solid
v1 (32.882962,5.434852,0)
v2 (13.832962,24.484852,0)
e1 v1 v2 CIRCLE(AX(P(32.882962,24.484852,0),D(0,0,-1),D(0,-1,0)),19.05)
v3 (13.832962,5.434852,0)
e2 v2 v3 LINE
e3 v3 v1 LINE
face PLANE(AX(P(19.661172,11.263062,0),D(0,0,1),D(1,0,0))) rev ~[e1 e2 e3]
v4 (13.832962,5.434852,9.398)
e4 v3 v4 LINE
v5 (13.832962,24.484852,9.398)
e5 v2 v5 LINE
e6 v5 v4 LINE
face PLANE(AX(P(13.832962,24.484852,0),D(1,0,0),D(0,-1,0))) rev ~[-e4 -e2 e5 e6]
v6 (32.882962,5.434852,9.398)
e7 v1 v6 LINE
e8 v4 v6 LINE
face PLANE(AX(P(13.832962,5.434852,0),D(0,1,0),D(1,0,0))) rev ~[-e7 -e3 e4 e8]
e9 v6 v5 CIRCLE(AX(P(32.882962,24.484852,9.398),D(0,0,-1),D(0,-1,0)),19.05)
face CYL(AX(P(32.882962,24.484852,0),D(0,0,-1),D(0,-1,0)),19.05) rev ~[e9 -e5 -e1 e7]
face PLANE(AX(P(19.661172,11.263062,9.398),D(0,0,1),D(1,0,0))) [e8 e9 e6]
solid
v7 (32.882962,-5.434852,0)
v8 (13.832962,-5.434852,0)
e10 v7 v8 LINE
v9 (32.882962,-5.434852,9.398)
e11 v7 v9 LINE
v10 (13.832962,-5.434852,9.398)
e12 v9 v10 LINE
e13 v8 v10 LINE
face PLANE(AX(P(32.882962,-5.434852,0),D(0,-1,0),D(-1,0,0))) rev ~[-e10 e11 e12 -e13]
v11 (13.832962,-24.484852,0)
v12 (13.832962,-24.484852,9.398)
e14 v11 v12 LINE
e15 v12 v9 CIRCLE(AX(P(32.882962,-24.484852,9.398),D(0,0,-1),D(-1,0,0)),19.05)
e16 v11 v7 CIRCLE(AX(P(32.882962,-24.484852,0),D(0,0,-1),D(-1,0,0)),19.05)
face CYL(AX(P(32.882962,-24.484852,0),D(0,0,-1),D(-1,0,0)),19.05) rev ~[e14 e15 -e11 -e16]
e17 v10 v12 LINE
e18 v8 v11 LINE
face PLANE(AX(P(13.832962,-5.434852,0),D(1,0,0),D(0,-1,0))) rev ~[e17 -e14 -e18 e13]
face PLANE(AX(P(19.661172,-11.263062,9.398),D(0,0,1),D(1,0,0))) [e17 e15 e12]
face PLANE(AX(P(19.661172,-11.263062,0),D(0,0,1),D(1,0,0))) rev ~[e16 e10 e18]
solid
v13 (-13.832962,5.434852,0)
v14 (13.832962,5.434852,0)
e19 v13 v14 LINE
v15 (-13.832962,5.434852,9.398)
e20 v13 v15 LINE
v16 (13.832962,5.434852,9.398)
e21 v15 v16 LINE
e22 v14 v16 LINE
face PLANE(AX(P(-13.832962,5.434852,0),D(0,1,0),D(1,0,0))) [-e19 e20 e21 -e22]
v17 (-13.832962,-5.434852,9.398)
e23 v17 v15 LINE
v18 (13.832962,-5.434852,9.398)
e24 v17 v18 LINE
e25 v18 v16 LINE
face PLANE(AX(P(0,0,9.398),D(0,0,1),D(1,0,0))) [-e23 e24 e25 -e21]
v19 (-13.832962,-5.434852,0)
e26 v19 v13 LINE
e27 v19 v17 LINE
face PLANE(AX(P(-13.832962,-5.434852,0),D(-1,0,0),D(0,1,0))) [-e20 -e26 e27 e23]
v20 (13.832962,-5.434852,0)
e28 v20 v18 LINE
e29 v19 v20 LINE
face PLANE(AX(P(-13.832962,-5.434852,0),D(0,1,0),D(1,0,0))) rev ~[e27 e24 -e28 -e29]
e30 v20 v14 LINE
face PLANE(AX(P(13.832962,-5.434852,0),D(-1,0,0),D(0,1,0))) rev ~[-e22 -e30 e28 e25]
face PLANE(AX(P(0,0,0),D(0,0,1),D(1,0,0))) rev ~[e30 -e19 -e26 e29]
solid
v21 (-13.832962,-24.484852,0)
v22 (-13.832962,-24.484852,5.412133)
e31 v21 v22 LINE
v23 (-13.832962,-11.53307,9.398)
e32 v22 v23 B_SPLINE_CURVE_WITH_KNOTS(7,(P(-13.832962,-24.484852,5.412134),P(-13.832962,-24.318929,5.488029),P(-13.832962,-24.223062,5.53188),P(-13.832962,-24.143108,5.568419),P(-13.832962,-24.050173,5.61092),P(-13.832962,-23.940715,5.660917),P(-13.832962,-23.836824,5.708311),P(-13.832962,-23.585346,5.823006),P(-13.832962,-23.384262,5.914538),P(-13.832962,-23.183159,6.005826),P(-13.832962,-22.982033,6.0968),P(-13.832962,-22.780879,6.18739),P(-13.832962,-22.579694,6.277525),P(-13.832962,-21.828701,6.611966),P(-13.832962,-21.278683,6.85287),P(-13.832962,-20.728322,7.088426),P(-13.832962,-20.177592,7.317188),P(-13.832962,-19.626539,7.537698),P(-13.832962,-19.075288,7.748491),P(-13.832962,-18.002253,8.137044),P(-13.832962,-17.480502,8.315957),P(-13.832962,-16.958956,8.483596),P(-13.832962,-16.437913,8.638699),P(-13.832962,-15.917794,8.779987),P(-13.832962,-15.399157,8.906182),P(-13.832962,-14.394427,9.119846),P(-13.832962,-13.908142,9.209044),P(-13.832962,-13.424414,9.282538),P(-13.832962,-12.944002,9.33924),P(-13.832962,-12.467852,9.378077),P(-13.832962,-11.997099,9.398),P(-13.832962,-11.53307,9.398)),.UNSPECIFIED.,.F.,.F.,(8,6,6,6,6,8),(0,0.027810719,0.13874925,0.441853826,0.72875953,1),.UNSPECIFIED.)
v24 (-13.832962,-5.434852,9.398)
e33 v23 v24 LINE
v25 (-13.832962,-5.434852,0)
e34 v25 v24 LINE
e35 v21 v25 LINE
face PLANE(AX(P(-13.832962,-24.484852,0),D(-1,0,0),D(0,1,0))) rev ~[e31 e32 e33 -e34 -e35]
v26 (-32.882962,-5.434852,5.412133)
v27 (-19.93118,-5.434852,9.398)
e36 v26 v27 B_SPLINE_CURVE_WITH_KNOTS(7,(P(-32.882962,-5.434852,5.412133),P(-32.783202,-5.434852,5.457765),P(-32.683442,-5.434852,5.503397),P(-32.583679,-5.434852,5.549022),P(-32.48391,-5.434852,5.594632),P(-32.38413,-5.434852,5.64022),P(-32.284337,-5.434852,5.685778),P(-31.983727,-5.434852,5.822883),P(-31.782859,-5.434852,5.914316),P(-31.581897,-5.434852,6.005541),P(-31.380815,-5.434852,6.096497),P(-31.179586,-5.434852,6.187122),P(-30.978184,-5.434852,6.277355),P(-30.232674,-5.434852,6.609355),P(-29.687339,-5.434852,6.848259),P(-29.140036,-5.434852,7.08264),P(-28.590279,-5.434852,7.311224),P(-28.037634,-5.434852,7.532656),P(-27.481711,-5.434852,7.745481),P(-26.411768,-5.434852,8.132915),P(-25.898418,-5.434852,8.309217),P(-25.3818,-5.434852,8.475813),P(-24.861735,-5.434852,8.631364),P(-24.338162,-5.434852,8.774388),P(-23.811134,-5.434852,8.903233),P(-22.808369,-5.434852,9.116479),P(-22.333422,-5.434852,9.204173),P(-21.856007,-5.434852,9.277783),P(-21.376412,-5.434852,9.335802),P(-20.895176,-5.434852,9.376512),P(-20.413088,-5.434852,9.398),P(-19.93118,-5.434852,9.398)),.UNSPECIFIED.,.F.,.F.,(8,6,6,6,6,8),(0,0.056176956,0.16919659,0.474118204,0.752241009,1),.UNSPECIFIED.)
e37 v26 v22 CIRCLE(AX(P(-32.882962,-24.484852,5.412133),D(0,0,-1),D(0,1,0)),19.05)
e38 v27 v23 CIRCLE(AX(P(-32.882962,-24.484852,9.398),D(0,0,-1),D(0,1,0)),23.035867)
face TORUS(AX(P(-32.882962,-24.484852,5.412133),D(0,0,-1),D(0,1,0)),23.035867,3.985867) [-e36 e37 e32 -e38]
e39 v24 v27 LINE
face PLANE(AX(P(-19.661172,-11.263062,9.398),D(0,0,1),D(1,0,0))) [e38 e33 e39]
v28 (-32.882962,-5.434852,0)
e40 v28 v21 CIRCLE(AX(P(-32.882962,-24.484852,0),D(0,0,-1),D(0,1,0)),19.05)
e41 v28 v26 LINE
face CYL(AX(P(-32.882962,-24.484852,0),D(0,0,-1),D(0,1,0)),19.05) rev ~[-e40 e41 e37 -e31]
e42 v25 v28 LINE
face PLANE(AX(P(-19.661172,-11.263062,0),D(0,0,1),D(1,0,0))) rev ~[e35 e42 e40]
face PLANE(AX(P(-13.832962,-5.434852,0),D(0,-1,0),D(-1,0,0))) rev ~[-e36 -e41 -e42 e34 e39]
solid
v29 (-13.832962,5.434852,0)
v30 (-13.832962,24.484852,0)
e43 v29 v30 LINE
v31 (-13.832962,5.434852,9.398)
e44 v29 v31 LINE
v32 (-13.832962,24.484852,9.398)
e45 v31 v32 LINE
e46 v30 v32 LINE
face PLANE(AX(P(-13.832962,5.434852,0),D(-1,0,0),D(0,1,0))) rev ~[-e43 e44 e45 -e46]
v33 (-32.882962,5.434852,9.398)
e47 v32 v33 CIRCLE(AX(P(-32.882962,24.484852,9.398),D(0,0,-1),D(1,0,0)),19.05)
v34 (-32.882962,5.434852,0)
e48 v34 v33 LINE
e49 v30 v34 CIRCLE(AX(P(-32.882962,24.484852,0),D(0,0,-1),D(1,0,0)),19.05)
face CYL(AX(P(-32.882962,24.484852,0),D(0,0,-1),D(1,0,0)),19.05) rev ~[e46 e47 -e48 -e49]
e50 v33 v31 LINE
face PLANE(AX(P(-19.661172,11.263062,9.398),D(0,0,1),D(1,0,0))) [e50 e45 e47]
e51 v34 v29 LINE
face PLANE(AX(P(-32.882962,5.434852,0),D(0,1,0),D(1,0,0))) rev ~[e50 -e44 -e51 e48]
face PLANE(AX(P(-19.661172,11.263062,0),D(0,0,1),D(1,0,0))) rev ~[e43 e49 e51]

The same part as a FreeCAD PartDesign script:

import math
import FreeCAD as App
import Part
import Sketcher
Q = App.Units.Quantity


def edges_at(feature, points):
    """Names of the edges that pass closest to the given points."""
    edges = feature.Shape.Edges
    near = lambda p: min(range(len(edges)), key=lambda i: edges[i].distToShape(Part.Vertex(*p))[0])
    return sorted({f"Edge{near(p) + 1}" for p in points})

doc = App.newDocument("Part")
body = doc.addObject("PartDesign::Body", "Body")

sketch1 = body.newObject("Sketcher::SketchObject", "Sketch")
sketch1.AttachmentSupport = (doc.getObject("XY_Plane"), [""])
sketch1.MapMode = "FlatFace"
sketch1.addGeometry(Part.LineSegment(App.Vector(-32.882962, 5.434852, 0), App.Vector(-13.832962, 5.434852, 0)), False)
sketch1.addGeometry(Part.LineSegment(App.Vector(-13.832962, 5.434852, 0), App.Vector(-13.832962, 24.484852, 0)), False)
sketch1.addGeometry(Part.ArcOfCircle(Part.Circle(App.Vector(-32.882962, 24.484852, 0), App.Vector(0, 0, 1), 19.05), math.radians(-90), math.radians(0)), False)
sketch1.addConstraint(Sketcher.Constraint("Coincident", 0, 2, 1, 1))
sketch1.addConstraint(Sketcher.Constraint("Tangent", 1, 2, 2, 2))
sketch1.addConstraint(Sketcher.Constraint("Tangent", 2, 1, 0, 1))
sketch1.addConstraint(Sketcher.Constraint("Horizontal", 0))
sketch1.addConstraint(Sketcher.Constraint("Vertical", 1))
sketch1.addConstraint(Sketcher.Constraint("Radius", 2, Q("0.75 in")))
sketch1.addConstraint(Sketcher.Constraint("DistanceX", 2, 3, -1, 1, 32.882962))
sketch1.addConstraint(Sketcher.Constraint("DistanceY", -1, 1, 2, 3, 24.484852))
pad1 = body.newObject("PartDesign::Pad", "Pad")
pad1.Profile = sketch1
pad1.Length = Q("0.37 in")
body2 = doc.addObject("PartDesign::Body", "Body001")

sketch2 = body2.newObject("Sketcher::SketchObject", "Sketch001")
sketch2.AttachmentSupport = (doc.getObject("XY_Plane001"), [""])
sketch2.MapMode = "FlatFace"
sketch2.addGeometry(Part.ArcOfCircle(Part.Circle(App.Vector(32.882962, 24.484852, 0), App.Vector(0, 0, 1), 19.05), math.radians(-180), math.radians(-90)), False)
sketch2.addGeometry(Part.LineSegment(App.Vector(13.832962, 24.484852, 0), App.Vector(13.832962, 5.434852, 0)), False)
sketch2.addGeometry(Part.LineSegment(App.Vector(13.832962, 5.434852, 0), App.Vector(32.882962, 5.434852, 0)), False)
sketch2.addConstraint(Sketcher.Constraint("Tangent", 0, 1, 1, 1))
sketch2.addConstraint(Sketcher.Constraint("Coincident", 1, 2, 2, 1))
sketch2.addConstraint(Sketcher.Constraint("Tangent", 2, 2, 0, 2))
sketch2.addConstraint(Sketcher.Constraint("Vertical", 1))
sketch2.addConstraint(Sketcher.Constraint("Horizontal", 2))
sketch2.addConstraint(Sketcher.Constraint("Radius", 0, Q("0.75 in")))
sketch2.addConstraint(Sketcher.Constraint("DistanceX", -1, 1, 0, 3, 32.882962))
sketch2.addConstraint(Sketcher.Constraint("DistanceY", -1, 1, 0, 3, 24.484852))
pad2 = body2.newObject("PartDesign::Pad", "Pad001")
pad2.Profile = sketch2
pad2.Length = Q("0.37 in")
body3 = doc.addObject("PartDesign::Body", "Body002")

sketch3 = body3.newObject("Sketcher::SketchObject", "Sketch002")
sketch3.AttachmentSupport = (doc.getObject("XY_Plane002"), [""])
sketch3.MapMode = "FlatFace"
sketch3.addGeometry(Part.LineSegment(App.Vector(32.882962, -5.434852, 0), App.Vector(13.832962, -5.434852, 0)), False)
sketch3.addGeometry(Part.LineSegment(App.Vector(13.832962, -5.434852, 0), App.Vector(13.832962, -24.484852, 0)), False)
sketch3.addGeometry(Part.ArcOfCircle(Part.Circle(App.Vector(32.882962, -24.484852, 0), App.Vector(0, 0, 1), 19.05), math.radians(90), math.radians(180)), False)
sketch3.addConstraint(Sketcher.Constraint("Coincident", 0, 2, 1, 1))
sketch3.addConstraint(Sketcher.Constraint("Tangent", 1, 2, 2, 2))
sketch3.addConstraint(Sketcher.Constraint("Tangent", 2, 1, 0, 1))
sketch3.addConstraint(Sketcher.Constraint("Horizontal", 0))
sketch3.addConstraint(Sketcher.Constraint("Vertical", 1))
sketch3.addConstraint(Sketcher.Constraint("Radius", 2, Q("0.75 in")))
sketch3.addConstraint(Sketcher.Constraint("DistanceX", -1, 1, 2, 3, 32.882962))
sketch3.addConstraint(Sketcher.Constraint("DistanceY", 2, 3, -1, 1, 24.484852))
pad3 = body3.newObject("PartDesign::Pad", "Pad002")
pad3.Profile = sketch3
pad3.Length = Q("0.37 in")
body4 = doc.addObject("PartDesign::Body", "Body003")

sketch4 = body4.newObject("Sketcher::SketchObject", "Sketch003")
sketch4.AttachmentSupport = (doc.getObject("XY_Plane003"), [""])
sketch4.MapMode = "FlatFace"
sketch4.addGeometry(Part.LineSegment(App.Vector(-13.832962, -24.484852, 0), App.Vector(-13.832962, -5.434852, 0)), False)
sketch4.addGeometry(Part.LineSegment(App.Vector(-13.832962, -5.434852, 0), App.Vector(-32.882962, -5.434852, 0)), False)
sketch4.addGeometry(Part.ArcOfCircle(Part.Circle(App.Vector(-32.882962, -24.484852, 0), App.Vector(0, 0, 1), 19.05), math.radians(0), math.radians(90)), False)
sketch4.addConstraint(Sketcher.Constraint("Coincident", 0, 2, 1, 1))
sketch4.addConstraint(Sketcher.Constraint("Tangent", 1, 2, 2, 2))
sketch4.addConstraint(Sketcher.Constraint("Tangent", 2, 1, 0, 1))
sketch4.addConstraint(Sketcher.Constraint("Vertical", 0))
sketch4.addConstraint(Sketcher.Constraint("Horizontal", 1))
sketch4.addConstraint(Sketcher.Constraint("Radius", 2, Q("0.75 in")))
sketch4.addConstraint(Sketcher.Constraint("DistanceX", 2, 3, -1, 1, 32.882962))
sketch4.addConstraint(Sketcher.Constraint("DistanceY", 2, 3, -1, 1, 24.484852))
pad4 = body4.newObject("PartDesign::Pad", "Pad003")
pad4.Profile = sketch4
pad4.Length = Q("0.37 in")
doc.recompute()

fillet = body4.newObject("PartDesign::Fillet", "Fillet")
fillet.Base = (pad4, edges_at(pad4, [(-19.413, -11.014, 9.398)]))
fillet.Radius = 3.985867
body5 = doc.addObject("PartDesign::Body", "Body004")

sketch5 = body5.newObject("Sketcher::SketchObject", "Sketch004")
sketch5.AttachmentSupport = (doc.getObject("XY_Plane004"), [""])
sketch5.MapMode = "FlatFace"
sketch5.addGeometry(Part.LineSegment(App.Vector(-13.832962, 5.434852, 0), App.Vector(-13.832962, -5.434852, 0)), False)
sketch5.addGeometry(Part.LineSegment(App.Vector(-13.832962, -5.434852, 0), App.Vector(13.832962, -5.434852, 0)), False)
sketch5.addGeometry(Part.LineSegment(App.Vector(13.832962, -5.434852, 0), App.Vector(13.832962, 5.434852, 0)), False)
sketch5.addGeometry(Part.LineSegment(App.Vector(13.832962, 5.434852, 0), App.Vector(-13.832962, 5.434852, 0)), False)
sketch5.addConstraint(Sketcher.Constraint("Coincident", 0, 2, 1, 1))
sketch5.addConstraint(Sketcher.Constraint("Coincident", 1, 2, 2, 1))
sketch5.addConstraint(Sketcher.Constraint("Coincident", 2, 2, 3, 1))
sketch5.addConstraint(Sketcher.Constraint("Coincident", 3, 2, 0, 1))
sketch5.addConstraint(Sketcher.Constraint("Vertical", 0))
sketch5.addConstraint(Sketcher.Constraint("Horizontal", 1))
sketch5.addConstraint(Sketcher.Constraint("Vertical", 2))
sketch5.addConstraint(Sketcher.Constraint("Horizontal", 3))
sketch5.addConstraint(Sketcher.Constraint("Symmetric", 0, 2, 2, 2, -1, 1))
sketch5.addConstraint(Sketcher.Constraint("DistanceX", 1, 1, 1, 2, 27.665924))
sketch5.addConstraint(Sketcher.Constraint("DistanceY", 0, 2, 0, 1, 10.869704))
pad5 = body5.newObject("PartDesign::Pad", "Pad004")
pad5.Profile = sketch5
pad5.Length = Q("0.37 in")

doc.recompute()
